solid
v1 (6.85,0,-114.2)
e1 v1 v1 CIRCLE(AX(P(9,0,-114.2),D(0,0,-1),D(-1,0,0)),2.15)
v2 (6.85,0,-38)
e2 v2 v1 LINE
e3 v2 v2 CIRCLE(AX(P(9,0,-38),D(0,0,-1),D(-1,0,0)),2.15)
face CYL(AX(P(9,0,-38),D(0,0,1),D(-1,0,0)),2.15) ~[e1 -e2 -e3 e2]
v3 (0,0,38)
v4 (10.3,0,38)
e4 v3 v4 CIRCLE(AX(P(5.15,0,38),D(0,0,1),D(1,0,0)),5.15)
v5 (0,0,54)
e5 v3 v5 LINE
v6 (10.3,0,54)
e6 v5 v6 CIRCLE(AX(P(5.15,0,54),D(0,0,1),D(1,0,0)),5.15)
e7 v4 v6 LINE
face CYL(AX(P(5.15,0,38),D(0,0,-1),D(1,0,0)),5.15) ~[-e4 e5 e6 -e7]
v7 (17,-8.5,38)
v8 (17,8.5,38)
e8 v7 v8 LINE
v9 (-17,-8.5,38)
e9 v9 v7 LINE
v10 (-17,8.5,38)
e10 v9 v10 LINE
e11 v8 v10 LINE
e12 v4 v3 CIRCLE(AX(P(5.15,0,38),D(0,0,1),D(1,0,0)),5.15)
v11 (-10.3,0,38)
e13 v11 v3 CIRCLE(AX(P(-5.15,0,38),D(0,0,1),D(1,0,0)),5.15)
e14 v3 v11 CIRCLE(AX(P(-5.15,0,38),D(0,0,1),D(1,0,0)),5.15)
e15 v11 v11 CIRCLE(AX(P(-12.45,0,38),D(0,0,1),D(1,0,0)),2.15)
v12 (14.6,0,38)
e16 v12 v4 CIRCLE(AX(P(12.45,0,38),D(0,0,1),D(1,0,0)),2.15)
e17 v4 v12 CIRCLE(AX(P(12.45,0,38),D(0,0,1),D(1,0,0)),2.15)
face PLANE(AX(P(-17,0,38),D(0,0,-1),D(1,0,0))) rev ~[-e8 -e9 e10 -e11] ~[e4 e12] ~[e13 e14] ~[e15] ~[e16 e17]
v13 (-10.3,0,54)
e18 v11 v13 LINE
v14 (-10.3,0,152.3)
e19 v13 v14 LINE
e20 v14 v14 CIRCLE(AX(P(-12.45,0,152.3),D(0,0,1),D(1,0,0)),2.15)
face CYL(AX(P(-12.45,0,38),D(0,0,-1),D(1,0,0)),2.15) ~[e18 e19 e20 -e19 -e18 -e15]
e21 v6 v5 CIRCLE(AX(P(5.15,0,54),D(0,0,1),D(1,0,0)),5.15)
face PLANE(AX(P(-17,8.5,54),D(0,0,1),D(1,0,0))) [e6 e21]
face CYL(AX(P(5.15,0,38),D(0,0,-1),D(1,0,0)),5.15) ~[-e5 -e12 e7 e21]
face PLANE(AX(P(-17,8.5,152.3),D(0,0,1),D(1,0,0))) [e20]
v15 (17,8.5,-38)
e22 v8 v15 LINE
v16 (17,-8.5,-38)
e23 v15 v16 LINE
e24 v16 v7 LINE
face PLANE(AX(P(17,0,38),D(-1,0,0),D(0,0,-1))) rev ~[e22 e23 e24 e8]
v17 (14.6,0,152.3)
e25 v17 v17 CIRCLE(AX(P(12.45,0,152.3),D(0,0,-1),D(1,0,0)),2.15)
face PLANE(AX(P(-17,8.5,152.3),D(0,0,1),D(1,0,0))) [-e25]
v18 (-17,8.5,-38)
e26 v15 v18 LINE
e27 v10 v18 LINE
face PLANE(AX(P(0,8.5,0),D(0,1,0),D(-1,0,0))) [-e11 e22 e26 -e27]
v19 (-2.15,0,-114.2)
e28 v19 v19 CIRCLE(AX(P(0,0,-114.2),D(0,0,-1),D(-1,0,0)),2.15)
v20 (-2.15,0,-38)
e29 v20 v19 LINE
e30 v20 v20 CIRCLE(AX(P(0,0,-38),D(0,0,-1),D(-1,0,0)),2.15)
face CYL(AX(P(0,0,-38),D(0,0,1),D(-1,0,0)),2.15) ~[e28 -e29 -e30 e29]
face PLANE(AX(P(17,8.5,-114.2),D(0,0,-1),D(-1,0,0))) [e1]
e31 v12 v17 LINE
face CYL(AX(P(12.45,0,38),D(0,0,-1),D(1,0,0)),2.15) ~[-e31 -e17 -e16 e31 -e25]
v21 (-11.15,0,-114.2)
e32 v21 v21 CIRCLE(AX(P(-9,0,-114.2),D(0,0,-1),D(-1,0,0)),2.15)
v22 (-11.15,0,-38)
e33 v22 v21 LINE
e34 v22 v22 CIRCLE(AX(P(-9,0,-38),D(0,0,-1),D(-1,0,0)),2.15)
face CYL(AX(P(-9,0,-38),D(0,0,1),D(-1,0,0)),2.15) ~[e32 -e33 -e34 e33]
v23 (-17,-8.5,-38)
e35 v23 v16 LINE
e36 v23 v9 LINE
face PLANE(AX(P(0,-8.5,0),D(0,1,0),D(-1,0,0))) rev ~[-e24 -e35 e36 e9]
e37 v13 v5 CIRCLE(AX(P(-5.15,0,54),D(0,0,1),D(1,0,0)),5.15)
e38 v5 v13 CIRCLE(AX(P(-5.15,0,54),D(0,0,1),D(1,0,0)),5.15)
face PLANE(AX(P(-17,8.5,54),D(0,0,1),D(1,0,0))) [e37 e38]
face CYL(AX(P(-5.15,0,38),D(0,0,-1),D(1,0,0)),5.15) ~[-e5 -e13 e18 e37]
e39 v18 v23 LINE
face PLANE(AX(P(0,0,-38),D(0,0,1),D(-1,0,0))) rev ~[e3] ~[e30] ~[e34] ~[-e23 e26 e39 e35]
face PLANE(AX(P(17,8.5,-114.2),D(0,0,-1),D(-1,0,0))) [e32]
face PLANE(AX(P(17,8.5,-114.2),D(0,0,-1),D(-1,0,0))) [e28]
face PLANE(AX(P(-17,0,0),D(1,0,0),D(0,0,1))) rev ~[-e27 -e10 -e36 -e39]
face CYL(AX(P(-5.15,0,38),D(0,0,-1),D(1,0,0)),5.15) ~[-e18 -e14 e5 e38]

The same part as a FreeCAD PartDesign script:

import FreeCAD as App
import Part
import Sketcher

V = App.Vector
Q = App.Units.Quantity


def add_polygon(sketch, points):
    """Adds a closed chain of lines whose ends are joined by coincident constraints."""
    first, n = sketch.GeometryCount, len(points)
    for a, b in zip(points, points[1:] + points[:1]):
        sketch.addGeometry(Part.LineSegment(App.Vector(*a, 0), App.Vector(*b, 0)), False)
    for i in range(n):
        sketch.addConstraint(Sketcher.Constraint("Coincident", first + i, 2, first + (i + 1) % n, 1))

doc = App.newDocument("Part")
body = doc.addObject("PartDesign::Body", "Body")

# Sketch on XZ plane
sketch1 = body.newObject("Sketcher::SketchObject", "Sketch")
sketch1.AttachmentSupport = (doc.getObject("XZ_Plane"), [""])
sketch1.MapMode = "FlatFace"
add_polygon(sketch1, [(-17, 38), (17, 38), (17, -38), (-17, -38)])  # lines 0-3
sketch1.addConstraint([
    Sketcher.Constraint("Horizontal", 0),
    Sketcher.Constraint("Vertical", 1),
    Sketcher.Constraint("Horizontal", 2),
    Sketcher.Constraint("Vertical", 3),
    Sketcher.Constraint("Symmetric", 0, 2, 2, 2, -1, 1),
    Sketcher.Constraint("DistanceX", 0, 1, 0, 2, Q("34 mm")),
    Sketcher.Constraint("DistanceY", 1, 2, 1, 1, Q("76 mm")),
])
pad1 = body.newObject("PartDesign::Pad", "Pad")
pad1.Profile = sketch1
pad1.Length = 17
pad1.Midplane = True

# Sketch on XY plane
sketch2 = body.newObject("Sketcher::SketchObject", "Sketch001")
sketch2.AttachmentSupport = (doc.getObject("XY_Plane"), [""])
sketch2.MapMode = "FlatFace"
sketch2.AttachmentOffset = App.Placement(V(0, 0, 38), App.Rotation())
sketch2.addGeometry([
    Part.Circle(V(-5, 0, 0), V(0, 0, 1), 5),
    Part.Circle(V(5, 0, 0), V(0, 0, 1), 5),
], False)
sketch2.addConstraint([
    Sketcher.Constraint("Equal", 0, 1),
    Sketcher.Constraint("Symmetric", 0, 3, 1, 3, -1, 1),
    Sketcher.Constraint("PointOnObject", 0, 3, -1),
    Sketcher.Constraint("Diameter", 0, Q("10.3 mm")),
    Sketcher.Constraint("DistanceX", 0, 3, 1, 3, Q("10.3 mm")),
])
pad2 = body.newObject("PartDesign::Pad", "Pad001")
pad2.Profile = sketch2
pad2.Length = 16

# Sketch on XY plane
sketch3 = body.newObject("Sketcher::SketchObject", "Sketch002")
sketch3.AttachmentSupport = (doc.getObject("XY_Plane"), [""])
sketch3.MapMode = "FlatFace"
sketch3.AttachmentOffset = App.Placement(V(0, 0, 38), App.Rotation())
sketch3.addGeometry([
    Part.Circle(V(-12.4, 0, 0), V(0, 0, 1), 2.1),
    Part.Circle(V(12.4, 0, 0), V(0, 0, 1), 2.1),
], False)
sketch3.addConstraint([
    Sketcher.Constraint("Equal", 0, 1),
    Sketcher.Constraint("Symmetric", 0, 3, 1, 3, -1, 1),
    Sketcher.Constraint("PointOnObject", 0, 3, -1),
    Sketcher.Constraint("Diameter", 0, Q("4.3 mm")),
    Sketcher.Constraint("DistanceX", 0, 3, 1, 3, Q("24.9 mm")),
])
pad3 = body.newObject("PartDesign::Pad", "Pad002")
pad3.Profile = sketch3
pad3.Length = 114.3

# Sketch on XY plane
sketch4 = body.newObject("Sketcher::SketchObject", "Sketch003")
sketch4.AttachmentSupport = (doc.getObject("XY_Plane"), [""])
sketch4.MapMode = "FlatFace"
sketch4.AttachmentOffset = App.Placement(V(0, 0, -38), App.Rotation())
sketch4.addGeometry([
    Part.Circle(V(0, 0, 0), V(0, 0, 1), 2.1),
    Part.Circle(V(-9, 0, 0), V(0, 0, 1), 2.1),
    Part.Circle(V(9, 0, 0), V(0, 0, 1), 2.1),
], False)
sketch4.addConstraint([
    Sketcher.Constraint("Coincident", 0, 3, -1, 1),
    Sketcher.Constraint("Equal", 0, 1),
    Sketcher.Constraint("Equal", 1, 2),
    Sketcher.Constraint("Symmetric", 1, 3, 2, 3, -1, 1),
    Sketcher.Constraint("PointOnObject", 1, 3, -1),
    Sketcher.Constraint("Diameter", 0, Q("4.3 mm")),
    Sketcher.Constraint("DistanceX", 1, 3, -1, 1, Q("9 mm")),
])
pad4 = body.newObject("PartDesign::Pad", "Pad003")
pad4.Profile = sketch4
pad4.Length = 76.2
pad4.Reversed = True

doc.recompute()
